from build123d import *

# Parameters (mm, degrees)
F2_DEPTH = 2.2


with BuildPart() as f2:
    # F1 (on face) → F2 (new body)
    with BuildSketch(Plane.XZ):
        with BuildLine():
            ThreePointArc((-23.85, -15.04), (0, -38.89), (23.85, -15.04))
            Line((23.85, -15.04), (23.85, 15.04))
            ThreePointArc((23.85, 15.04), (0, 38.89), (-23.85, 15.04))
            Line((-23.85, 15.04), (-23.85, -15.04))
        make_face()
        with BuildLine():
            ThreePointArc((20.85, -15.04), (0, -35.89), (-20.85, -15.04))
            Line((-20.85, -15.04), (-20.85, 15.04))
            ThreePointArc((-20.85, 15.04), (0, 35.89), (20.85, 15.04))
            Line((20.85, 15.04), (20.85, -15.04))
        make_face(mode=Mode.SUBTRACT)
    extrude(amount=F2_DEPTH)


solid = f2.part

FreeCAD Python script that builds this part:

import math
import FreeCAD as App
import Part
import Sketcher
Q = App.Units.Quantity

doc = App.newDocument("Part")
body = doc.addObject("PartDesign::Body", "Body")

# Sketch on XZ plane
sketch1 = body.newObject("Sketcher::SketchObject", "Sketch")
sketch1.AttachmentSupport = (doc.getObject("XZ_Plane"), [""])
sketch1.MapMode = "FlatFace"
sketch1.addGeometry(Part.ArcOfCircle(Part.Circle(App.Vector(0, -15, 0), App.Vector(0, 0, 1), 24), math.radians(180), math.radians(360)), False)
sketch1.addGeometry(Part.LineSegment(App.Vector(24, -15, 0), App.Vector(24, 15, 0)), False)
sketch1.addGeometry(Part.ArcOfCircle(Part.Circle(App.Vector(0, 15, 0), App.Vector(0, 0, 1), 24), math.radians(0), math.radians(180)), False)
sketch1.addGeometry(Part.LineSegment(App.Vector(-24, 15, 0), App.Vector(-24, -15, 0)), False)
sketch1.addGeometry(Part.LineSegment(App.Vector(21, 15, 0), App.Vector(21, -15, 0)), False)
sketch1.addGeometry(Part.ArcOfCircle(Part.Circle(App.Vector(0, -15, 0), App.Vector(0, 0, 1), 21), math.radians(180), math.radians(360)), False)
sketch1.addGeometry(Part.LineSegment(App.Vector(-21, -15, 0), App.Vector(-21, 15, 0)), False)
sketch1.addGeometry(Part.ArcOfCircle(Part.Circle(App.Vector(0, 15, 0), App.Vector(0, 0, 1), 21), math.radians(0), math.radians(180)), False)
sketch1.addConstraint(Sketcher.Constraint("Tangent", 0, 2, 1, 1))
sketch1.addConstraint(Sketcher.Constraint("Tangent", 1, 2, 2, 1))
sketch1.addConstraint(Sketcher.Constraint("Tangent", 2, 2, 3, 1))
sketch1.addConstraint(Sketcher.Constraint("Tangent", 3, 2, 0, 1))
sketch1.addConstraint(Sketcher.Constraint("Tangent", 4, 2, 5, 2))
sketch1.addConstraint(Sketcher.Constraint("Tangent", 5, 1, 6, 1))
sketch1.addConstraint(Sketcher.Constraint("Tangent", 6, 2, 7, 2))
sketch1.addConstraint(Sketcher.Constraint("Tangent", 7, 1, 4, 1))
sketch1.addConstraint(Sketcher.Constraint("Vertical", 1))
sketch1.addConstraint(Sketcher.Constraint("Vertical", 3))
sketch1.addConstraint(Sketcher.Constraint("Vertical", 4))
sketch1.addConstraint(Sketcher.Constraint("Vertical", 6))
sketch1.addConstraint(Sketcher.Constraint("Coincident", 5, 3, 0, 3))
sketch1.addConstraint(Sketcher.Constraint("Symmetric", 0, 3, 2, 3, -1, 1))
sketch1.addConstraint(Sketcher.Constraint("Horizontal", 7, 3, 1, 2))
sketch1.addConstraint(Sketcher.Constraint("Radius", 0, Q("23.85 mm")))
sketch1.addConstraint(Sketcher.Constraint("Radius", 5, Q("20.85 mm")))
sketch1.addConstraint(Sketcher.Constraint("DistanceY", 1, 1, 1, 2, Q("30.08 mm")))
pad1 = body.newObject("PartDesign::Pad", "Pad")
pad1.Profile = sketch1
pad1.Length = 2.2

doc.recompute()
